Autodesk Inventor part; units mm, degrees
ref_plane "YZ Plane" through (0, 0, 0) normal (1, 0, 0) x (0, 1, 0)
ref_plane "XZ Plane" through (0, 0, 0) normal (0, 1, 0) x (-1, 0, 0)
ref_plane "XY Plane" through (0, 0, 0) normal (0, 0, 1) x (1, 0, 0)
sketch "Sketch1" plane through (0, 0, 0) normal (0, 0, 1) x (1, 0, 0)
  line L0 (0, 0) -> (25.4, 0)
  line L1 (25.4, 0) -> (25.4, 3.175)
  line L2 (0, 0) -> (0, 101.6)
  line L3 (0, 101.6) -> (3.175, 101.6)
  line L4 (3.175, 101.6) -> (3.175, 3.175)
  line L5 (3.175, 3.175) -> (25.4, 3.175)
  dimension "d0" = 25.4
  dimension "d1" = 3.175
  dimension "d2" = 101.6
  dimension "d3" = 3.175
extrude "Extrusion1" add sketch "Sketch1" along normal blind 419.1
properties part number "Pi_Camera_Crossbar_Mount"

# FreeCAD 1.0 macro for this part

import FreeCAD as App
import Part
import Sketcher
from FreeCAD import Vector
Q = App.Units.Quantity


def add_polygon(sketch, points):
    """Adds a closed chain of lines whose ends are joined by coincident constraints."""
    first, n = sketch.GeometryCount, len(points)
    for a, b in zip(points, points[1:] + points[:1]):
        sketch.addGeometry(Part.LineSegment(App.Vector(*a, 0), App.Vector(*b, 0)), False)
    for i in range(n):
        sketch.addConstraint(Sketcher.Constraint("Coincident", first + i, 2, first + (i + 1) % n, 1))

doc = App.newDocument("Part")
body = doc.addObject("PartDesign::Body", "Body")

sketch1 = body.newObject("Sketcher::SketchObject", "Sketch")
sketch1.AttachmentSupport = (doc.getObject("XY_Plane"), [""])
sketch1.MapMode = "FlatFace"
add_polygon(sketch1, [(0, 101.6), (0, 0), (25.4, 0), (25.4, 3.175), (3.175, 3.175), (3.175, 101.6)])
sketch1.addConstraint([
    Sketcher.Constraint("Vertical", 0),
    Sketcher.Constraint("Horizontal", 1),
    Sketcher.Constraint("Vertical", 2),
    Sketcher.Constraint("Horizontal", 3),
    Sketcher.Constraint("Vertical", 4),
    Sketcher.Constraint("Horizontal", 5),
    Sketcher.Constraint("Coincident", 0, 2, -1, 1),
    Sketcher.Constraint("Equal", 5, 2),
    Sketcher.Constraint("DistanceX", 1, 1, 1, 2, Q("1 in")),
    Sketcher.Constraint("DistanceY", 0, 2, 0, 1, Q("4 in")),
    Sketcher.Constraint("DistanceX", 5, 2, 5, 1, Q("0.125 in")),
])
pad1 = body.newObject("PartDesign::Pad", "Pad")
pad1.Profile = sketch1
pad1.Length = Q("16.5 in")

doc.recompute()
